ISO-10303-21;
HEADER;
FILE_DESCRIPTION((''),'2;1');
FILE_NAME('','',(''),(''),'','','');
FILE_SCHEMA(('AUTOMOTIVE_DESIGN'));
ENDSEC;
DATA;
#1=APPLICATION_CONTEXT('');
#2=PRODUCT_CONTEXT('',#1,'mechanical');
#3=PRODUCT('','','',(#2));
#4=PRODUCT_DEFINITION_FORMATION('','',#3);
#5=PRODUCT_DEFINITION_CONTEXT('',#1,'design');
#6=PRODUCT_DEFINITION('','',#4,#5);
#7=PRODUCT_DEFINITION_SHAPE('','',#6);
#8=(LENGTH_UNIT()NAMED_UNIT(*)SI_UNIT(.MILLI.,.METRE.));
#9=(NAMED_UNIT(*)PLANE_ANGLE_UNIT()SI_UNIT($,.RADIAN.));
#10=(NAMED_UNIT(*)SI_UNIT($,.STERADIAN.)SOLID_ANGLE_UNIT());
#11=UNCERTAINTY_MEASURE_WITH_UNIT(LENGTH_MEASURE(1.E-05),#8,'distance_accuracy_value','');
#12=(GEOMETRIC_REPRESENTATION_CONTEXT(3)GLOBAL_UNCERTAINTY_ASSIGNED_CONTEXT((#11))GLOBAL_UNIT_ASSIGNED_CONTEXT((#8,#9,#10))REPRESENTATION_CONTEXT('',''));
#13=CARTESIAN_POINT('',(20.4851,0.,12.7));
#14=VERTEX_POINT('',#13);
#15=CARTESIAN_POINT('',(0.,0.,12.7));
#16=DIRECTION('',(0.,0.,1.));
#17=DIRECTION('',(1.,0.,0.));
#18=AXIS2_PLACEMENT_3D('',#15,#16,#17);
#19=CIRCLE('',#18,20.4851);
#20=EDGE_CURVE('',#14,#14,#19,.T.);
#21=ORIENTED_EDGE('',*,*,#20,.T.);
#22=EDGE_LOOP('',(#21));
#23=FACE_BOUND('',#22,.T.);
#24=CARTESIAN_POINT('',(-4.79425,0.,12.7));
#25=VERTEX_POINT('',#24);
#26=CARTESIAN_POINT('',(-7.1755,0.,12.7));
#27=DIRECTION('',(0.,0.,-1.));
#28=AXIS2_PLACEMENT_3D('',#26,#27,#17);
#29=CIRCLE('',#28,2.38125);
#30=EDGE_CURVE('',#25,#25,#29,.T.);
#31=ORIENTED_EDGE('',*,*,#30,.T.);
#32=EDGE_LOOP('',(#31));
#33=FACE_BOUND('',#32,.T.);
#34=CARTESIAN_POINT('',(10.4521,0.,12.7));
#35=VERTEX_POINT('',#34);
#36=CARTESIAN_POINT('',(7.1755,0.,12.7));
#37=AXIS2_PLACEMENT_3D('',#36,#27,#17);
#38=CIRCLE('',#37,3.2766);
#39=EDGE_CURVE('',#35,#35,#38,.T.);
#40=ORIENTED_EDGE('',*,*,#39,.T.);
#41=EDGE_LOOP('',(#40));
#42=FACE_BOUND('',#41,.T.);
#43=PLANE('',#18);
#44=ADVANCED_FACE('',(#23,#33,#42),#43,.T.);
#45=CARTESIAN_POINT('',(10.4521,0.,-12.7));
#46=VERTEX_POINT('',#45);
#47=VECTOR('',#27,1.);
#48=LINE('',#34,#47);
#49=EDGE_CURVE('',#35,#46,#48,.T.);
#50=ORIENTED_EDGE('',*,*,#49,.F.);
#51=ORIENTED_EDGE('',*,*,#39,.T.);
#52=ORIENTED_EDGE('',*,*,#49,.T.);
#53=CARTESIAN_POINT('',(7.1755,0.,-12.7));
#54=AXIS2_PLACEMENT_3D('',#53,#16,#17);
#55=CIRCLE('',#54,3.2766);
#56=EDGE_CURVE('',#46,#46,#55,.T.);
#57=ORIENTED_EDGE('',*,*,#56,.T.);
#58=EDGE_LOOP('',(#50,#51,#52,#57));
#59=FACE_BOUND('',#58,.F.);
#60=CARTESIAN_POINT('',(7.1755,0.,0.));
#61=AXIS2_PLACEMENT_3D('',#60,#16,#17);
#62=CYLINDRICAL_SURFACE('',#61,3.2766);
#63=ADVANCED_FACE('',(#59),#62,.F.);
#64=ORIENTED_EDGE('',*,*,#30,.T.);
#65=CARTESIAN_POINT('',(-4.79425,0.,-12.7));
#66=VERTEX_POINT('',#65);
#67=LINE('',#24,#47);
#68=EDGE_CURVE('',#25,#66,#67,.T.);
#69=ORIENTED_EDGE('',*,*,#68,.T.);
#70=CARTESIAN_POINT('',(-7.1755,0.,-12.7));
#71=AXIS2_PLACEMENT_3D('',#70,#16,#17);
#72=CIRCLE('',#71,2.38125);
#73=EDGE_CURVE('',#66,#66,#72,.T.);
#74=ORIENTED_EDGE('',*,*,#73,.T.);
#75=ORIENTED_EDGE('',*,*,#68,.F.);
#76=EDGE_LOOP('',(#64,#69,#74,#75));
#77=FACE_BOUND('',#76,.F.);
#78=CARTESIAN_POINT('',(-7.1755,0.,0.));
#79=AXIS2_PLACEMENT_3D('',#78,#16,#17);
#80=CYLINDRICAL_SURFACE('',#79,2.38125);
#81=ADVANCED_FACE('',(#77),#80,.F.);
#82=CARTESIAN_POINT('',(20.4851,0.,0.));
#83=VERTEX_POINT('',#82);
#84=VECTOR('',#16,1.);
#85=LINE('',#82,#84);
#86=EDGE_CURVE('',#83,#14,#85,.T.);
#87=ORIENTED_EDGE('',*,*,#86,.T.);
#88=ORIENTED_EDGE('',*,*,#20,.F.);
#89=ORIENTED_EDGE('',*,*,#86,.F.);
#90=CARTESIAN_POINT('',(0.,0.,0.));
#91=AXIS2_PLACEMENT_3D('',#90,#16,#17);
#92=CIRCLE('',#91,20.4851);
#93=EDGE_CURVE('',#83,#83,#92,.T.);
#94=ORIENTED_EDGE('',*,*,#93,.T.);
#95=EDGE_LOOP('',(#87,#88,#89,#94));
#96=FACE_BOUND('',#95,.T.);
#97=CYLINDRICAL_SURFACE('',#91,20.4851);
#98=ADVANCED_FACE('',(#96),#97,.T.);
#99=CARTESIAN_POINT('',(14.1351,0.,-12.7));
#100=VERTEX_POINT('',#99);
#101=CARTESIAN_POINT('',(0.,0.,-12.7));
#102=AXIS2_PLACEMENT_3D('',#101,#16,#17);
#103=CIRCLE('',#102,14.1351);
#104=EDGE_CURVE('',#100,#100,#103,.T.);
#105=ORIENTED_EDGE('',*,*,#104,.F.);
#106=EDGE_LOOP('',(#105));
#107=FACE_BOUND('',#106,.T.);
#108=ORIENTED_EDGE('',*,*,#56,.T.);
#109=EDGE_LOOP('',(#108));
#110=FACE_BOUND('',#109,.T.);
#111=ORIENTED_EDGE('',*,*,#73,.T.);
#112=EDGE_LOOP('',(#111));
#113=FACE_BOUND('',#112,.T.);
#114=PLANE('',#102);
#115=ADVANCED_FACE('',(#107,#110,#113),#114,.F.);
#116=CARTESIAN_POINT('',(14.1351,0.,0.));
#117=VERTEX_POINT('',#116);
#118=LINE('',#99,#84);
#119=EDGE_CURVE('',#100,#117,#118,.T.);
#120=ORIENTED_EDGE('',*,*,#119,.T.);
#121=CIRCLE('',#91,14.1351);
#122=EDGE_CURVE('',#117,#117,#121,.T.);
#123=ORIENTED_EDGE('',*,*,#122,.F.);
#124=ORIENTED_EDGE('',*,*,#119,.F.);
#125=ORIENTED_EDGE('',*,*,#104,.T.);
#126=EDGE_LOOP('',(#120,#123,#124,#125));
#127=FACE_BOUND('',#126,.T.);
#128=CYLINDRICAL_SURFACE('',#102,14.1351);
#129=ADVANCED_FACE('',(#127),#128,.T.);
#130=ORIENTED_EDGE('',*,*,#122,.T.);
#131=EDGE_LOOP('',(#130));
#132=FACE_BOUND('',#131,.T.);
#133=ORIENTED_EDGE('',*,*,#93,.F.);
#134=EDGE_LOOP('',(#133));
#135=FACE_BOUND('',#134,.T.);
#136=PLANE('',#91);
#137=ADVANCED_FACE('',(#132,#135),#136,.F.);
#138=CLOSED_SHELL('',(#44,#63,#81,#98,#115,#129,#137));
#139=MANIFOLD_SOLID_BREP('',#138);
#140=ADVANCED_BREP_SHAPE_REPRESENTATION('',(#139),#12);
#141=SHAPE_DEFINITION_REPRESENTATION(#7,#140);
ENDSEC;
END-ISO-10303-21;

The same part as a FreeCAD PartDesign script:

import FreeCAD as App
import Part
import Sketcher
Q = App.Units.Quantity

doc = App.newDocument("Part")
body = doc.addObject("PartDesign::Body", "Body")

# Sketch on XZ plane
sketch1 = body.newObject("Sketcher::SketchObject", "Sketch")
sketch1.AttachmentSupport = (doc.getObject("XZ_Plane"), [""])
sketch1.MapMode = "FlatFace"
sketch1.addGeometry([
    Part.LineSegment(App.Vector(0, 13, 0), App.Vector(0, -13, 0)),  # 0
    Part.LineSegment(App.Vector(0, -13, 0), App.Vector(14, -13, 0)),  # 1
    Part.LineSegment(App.Vector(14, -13, 0), App.Vector(14, 0, 0)),  # 2
    Part.LineSegment(App.Vector(14, 0, 0), App.Vector(20, 0, 0)),  # 3
    Part.LineSegment(App.Vector(20, 0, 0), App.Vector(20, 13, 0)),  # 4
    Part.LineSegment(App.Vector(20, 13, 0), App.Vector(0, 13, 0)),  # 5
], False)
sketch1.addConstraint([
    Sketcher.Constraint("Coincident", 0, 2, 1, 1),
    Sketcher.Constraint("Coincident", 1, 2, 2, 1),
    Sketcher.Constraint("Coincident", 2, 2, 3, 1),
    Sketcher.Constraint("Coincident", 3, 2, 4, 1),
    Sketcher.Constraint("Coincident", 4, 2, 5, 1),
    Sketcher.Constraint("Coincident", 5, 2, 0, 1),
    Sketcher.Constraint("Vertical", 0),
    Sketcher.Constraint("Horizontal", 1),
    Sketcher.Constraint("Vertical", 2),
    Sketcher.Constraint("Horizontal", 3),
    Sketcher.Constraint("Vertical", 4),
    Sketcher.Constraint("Horizontal", 5),
    Sketcher.Constraint("Symmetric", 0, 2, 5, 2, -1, 1),
    Sketcher.Constraint("PointOnObject", 2, 2, -1),
    Sketcher.Constraint("DistanceY", 0, 2, 0, 1, Q("1 in")),
    Sketcher.Constraint("DistanceX", 3, 1, 3, 2, Q("0.25 in")),
    Sketcher.Constraint("DistanceX", 1, 1, 1, 2, Q("0.5565 in")),
])
revolution = body.newObject("PartDesign::Revolution", "Revolution")
revolution.Profile = sketch1
revolution.ReferenceAxis = (sketch1, ["V_Axis"])
revolution.Angle = 360

# Sketch on XY plane
sketch2 = body.newObject("Sketcher::SketchObject", "Sketch001")
sketch2.AttachmentSupport = (doc.getObject("XY_Plane"), [""])
sketch2.MapMode = "FlatFace"
sketch2.addGeometry([
    Part.Circle(App.Vector(7.2, 0, 0), App.Vector(0, 0, 1), 3.3),
    Part.Circle(App.Vector(-7.2, 0, 0), App.Vector(0, 0, 1), 2.4),
], False)
sketch2.addConstraint([
    Sketcher.Constraint("Symmetric", 0, 3, 1, 3, -1, 1),
    Sketcher.Constraint("PointOnObject", 0, 3, -1),
    Sketcher.Constraint("Diameter", 0, Q("0.258 in")),
    Sketcher.Constraint("Diameter", 1, Q("0.1875 in")),
    Sketcher.Constraint("DistanceX", 1, 3, 0, 3, Q("0.565 in")),
])
pocket1 = body.newObject("PartDesign::Pocket", "Pocket")
pocket1.Profile = sketch2
pocket1.Type = "ThroughAll"
pocket1.Midplane = True

doc.recompute()
